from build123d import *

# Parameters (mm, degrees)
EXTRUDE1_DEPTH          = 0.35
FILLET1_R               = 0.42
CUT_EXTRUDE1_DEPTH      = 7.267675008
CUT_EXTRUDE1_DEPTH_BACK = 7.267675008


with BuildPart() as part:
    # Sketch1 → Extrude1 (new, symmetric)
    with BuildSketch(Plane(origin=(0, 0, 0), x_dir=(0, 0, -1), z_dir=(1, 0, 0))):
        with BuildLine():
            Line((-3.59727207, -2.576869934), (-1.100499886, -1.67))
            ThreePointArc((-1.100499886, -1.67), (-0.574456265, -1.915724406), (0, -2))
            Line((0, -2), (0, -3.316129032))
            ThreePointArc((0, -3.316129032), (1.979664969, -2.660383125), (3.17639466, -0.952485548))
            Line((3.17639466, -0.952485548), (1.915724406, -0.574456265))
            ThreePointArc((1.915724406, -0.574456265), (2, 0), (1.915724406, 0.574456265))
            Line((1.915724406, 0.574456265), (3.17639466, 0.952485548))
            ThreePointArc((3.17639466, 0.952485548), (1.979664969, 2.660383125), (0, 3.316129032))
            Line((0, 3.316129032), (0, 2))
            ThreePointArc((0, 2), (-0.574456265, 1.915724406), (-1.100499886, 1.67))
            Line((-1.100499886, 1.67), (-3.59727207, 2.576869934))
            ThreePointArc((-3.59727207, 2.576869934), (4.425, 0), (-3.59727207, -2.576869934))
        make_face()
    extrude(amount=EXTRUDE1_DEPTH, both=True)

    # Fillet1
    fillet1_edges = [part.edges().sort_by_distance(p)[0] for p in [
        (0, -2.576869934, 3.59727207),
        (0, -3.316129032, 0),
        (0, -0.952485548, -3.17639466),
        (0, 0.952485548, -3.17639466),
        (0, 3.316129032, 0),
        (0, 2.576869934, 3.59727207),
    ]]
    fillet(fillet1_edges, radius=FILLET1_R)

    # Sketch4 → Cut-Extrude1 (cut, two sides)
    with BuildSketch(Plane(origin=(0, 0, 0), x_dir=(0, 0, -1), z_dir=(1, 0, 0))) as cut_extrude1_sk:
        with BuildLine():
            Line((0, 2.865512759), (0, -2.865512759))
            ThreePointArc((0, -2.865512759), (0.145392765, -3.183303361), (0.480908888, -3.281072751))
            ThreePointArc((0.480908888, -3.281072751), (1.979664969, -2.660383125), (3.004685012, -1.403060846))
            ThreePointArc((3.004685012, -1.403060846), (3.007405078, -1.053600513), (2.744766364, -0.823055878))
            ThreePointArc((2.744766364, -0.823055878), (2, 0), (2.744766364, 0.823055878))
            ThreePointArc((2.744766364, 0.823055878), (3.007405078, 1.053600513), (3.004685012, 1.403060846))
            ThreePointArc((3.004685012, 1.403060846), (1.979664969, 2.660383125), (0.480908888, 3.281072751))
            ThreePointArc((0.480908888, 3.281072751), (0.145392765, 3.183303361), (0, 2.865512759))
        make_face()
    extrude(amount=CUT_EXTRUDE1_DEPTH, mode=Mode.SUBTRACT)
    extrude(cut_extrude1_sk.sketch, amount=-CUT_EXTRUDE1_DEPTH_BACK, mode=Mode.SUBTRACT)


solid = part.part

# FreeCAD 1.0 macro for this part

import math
import FreeCAD as App
import Part
import Sketcher
Q = App.Units.Quantity


def edges_at(feature, points):
    """Names of the edges that pass closest to the given points."""
    edges = feature.Shape.Edges
    near = lambda p: min(range(len(edges)), key=lambda i: edges[i].distToShape(Part.Vertex(*p))[0])
    return sorted({f"Edge{near(p) + 1}" for p in points})

doc = App.newDocument("Part")
body = doc.addObject("PartDesign::Body", "Body")

# Sketch on YZ plane
sketch1 = body.newObject("Sketcher::SketchObject", "Sketch")
sketch1.AttachmentSupport = (doc.getObject("YZ_Plane"), [""])
sketch1.MapMode = "FlatFace"
sketch1.addGeometry(Part.LineSegment(App.Vector(-1.67, 1.1005, 0), App.Vector(-2.57687, 3.597272, 0)), False)
sketch1.addGeometry(Part.ArcOfCircle(Part.Circle(App.Vector(0, 0, 0), App.Vector(0, 0, 1), 4.425), math.radians(125.61554), math.radians(414.38446)), False)
sketch1.addGeometry(Part.LineSegment(App.Vector(2.57687, 3.597272, 0), App.Vector(1.67, 1.1005, 0)), False)
sketch1.addGeometry(Part.ArcOfCircle(Part.Circle(App.Vector(0, 0, 0), App.Vector(0, 0, 1), 2), math.radians(0), math.radians(33.384162)), False)
sketch1.addGeometry(Part.LineSegment(App.Vector(2, 0, 0), App.Vector(3.316129, 0, 0)), False)
sketch1.addGeometry(Part.ArcOfCircle(Part.Circle(App.Vector(0, 0, 0), App.Vector(0, 0, 1), 3.316129), math.radians(-73.307919), math.radians(0)), False)
sketch1.addGeometry(Part.LineSegment(App.Vector(0.952486, -3.176395, 0), App.Vector(0.574456, -1.915724, 0)), False)
sketch1.addGeometry(Part.ArcOfCircle(Part.Circle(App.Vector(0, 0, 0), App.Vector(0, 0, 1), 2), math.radians(-106.692081), math.radians(-73.307919)), False)
sketch1.addGeometry(Part.LineSegment(App.Vector(-0.574456, -1.915724, 0), App.Vector(-0.952486, -3.176395, 0)), False)
sketch1.addGeometry(Part.ArcOfCircle(Part.Circle(App.Vector(0, 0, 0), App.Vector(0, 0, 1), 3.316129), math.radians(180), math.radians(253.307919)), False)
sketch1.addGeometry(Part.LineSegment(App.Vector(-3.316129, 0, 0), App.Vector(-2, 0, 0)), False)
sketch1.addGeometry(Part.ArcOfCircle(Part.Circle(App.Vector(0, 0, 0), App.Vector(0, 0, 1), 2), math.radians(146.615838), math.radians(180)), False)
sketch1.addConstraint(Sketcher.Constraint("Coincident", 0, 2, 1, 1))
sketch1.addConstraint(Sketcher.Constraint("Coincident", 1, 2, 2, 1))
sketch1.addConstraint(Sketcher.Constraint("Coincident", 2, 2, 3, 2))
sketch1.addConstraint(Sketcher.Constraint("Coincident", 3, 1, 4, 1))
sketch1.addConstraint(Sketcher.Constraint("Coincident", 4, 2, 5, 2))
sketch1.addConstraint(Sketcher.Constraint("Coincident", 5, 1, 6, 1))
sketch1.addConstraint(Sketcher.Constraint("Coincident", 6, 2, 7, 2))
sketch1.addConstraint(Sketcher.Constraint("Coincident", 7, 1, 8, 1))
sketch1.addConstraint(Sketcher.Constraint("Coincident", 8, 2, 9, 2))
sketch1.addConstraint(Sketcher.Constraint("Coincident", 9, 1, 10, 1))
sketch1.addConstraint(Sketcher.Constraint("Coincident", 10, 2, 11, 2))
sketch1.addConstraint(Sketcher.Constraint("Coincident", 11, 1, 0, 1))
sketch1.addConstraint(Sketcher.Constraint("Horizontal", 4))
sketch1.addConstraint(Sketcher.Constraint("Horizontal", 10))
sketch1.addConstraint(Sketcher.Constraint("Coincident", 1, 3, -1, 1))
sketch1.addConstraint(Sketcher.Constraint("Coincident", 3, 3, -1, 1))
sketch1.addConstraint(Sketcher.Constraint("Coincident", 5, 3, -1, 1))
sketch1.addConstraint(Sketcher.Constraint("Coincident", 7, 3, -1, 1))
sketch1.addConstraint(Sketcher.Constraint("Coincident", 9, 3, -1, 1))
sketch1.addConstraint(Sketcher.Constraint("Coincident", 11, 3, -1, 1))
sketch1.addConstraint(Sketcher.Constraint("Equal", 3, 7))
sketch1.addConstraint(Sketcher.Constraint("Equal", 5, 9))
sketch1.addConstraint(Sketcher.Constraint("Equal", 7, 11))
sketch1.addConstraint(Sketcher.Constraint("PointOnObject", 3, 1, -1))
sketch1.addConstraint(Sketcher.Constraint("PointOnObject", 9, 1, -1))
sketch1.addConstraint(Sketcher.Constraint("Horizontal", 0, 2, 1, 2))
sketch1.addConstraint(Sketcher.Constraint("Horizontal", 6, 2, 7, 1))
sketch1.addConstraint(Sketcher.Constraint("Horizontal", 5, 1, 8, 2))
sketch1.addConstraint(Sketcher.Constraint("Horizontal", 2, 2, 11, 1))
sketch1.addConstraint(Sketcher.Constraint("Radius", 3, Q("2 mm")))
sketch1.addConstraint(Sketcher.Constraint("Radius", 1, Q("4.425 mm")))
sketch1.addConstraint(Sketcher.Constraint("DistanceX", -1, 1, 2, 2, Q("1.67 mm")))
sketch1.addConstraint(Sketcher.Constraint("Radius", 5, Q("3.316129 mm")))
sketch1.addConstraint(Sketcher.Constraint("DistanceX", 0, 2, -1, 1, Q("2.57687 mm")))
sketch1.addConstraint(Sketcher.Constraint("DistanceX", 6, 2, 5, 1, Q("0.378029 mm")))
sketch1.addConstraint(Sketcher.Constraint("DistanceX", 7, 1, 5, 1, Q("1.526942 mm")))
pad1 = body.newObject("PartDesign::Pad", "Pad")
pad1.Profile = sketch1
pad1.Length = 0.7
pad1.Midplane = True
doc.recompute()

fillet = body.newObject("PartDesign::Fillet", "Fillet")
fillet.Base = (pad1, edges_at(pad1, [
    (0, -2.577, 3.597),
    (0, -3.316, 0),
    (0, -0.952, -3.176),
    (0, 0.952, -3.176),
    (0, 3.316, 0),
    (0, 2.577, 3.597),
]))
fillet.Radius = 0.42

# Sketch on YZ plane
sketch2 = body.newObject("Sketcher::SketchObject", "Sketch001")
sketch2.AttachmentSupport = (doc.getObject("YZ_Plane"), [""])
sketch2.MapMode = "FlatFace"
sketch2.addGeometry(Part.LineSegment(App.Vector(2.865513, 0, 0), App.Vector(-2.865513, 0, 0)), False)
sketch2.addGeometry(Part.ArcOfCircle(Part.Circle(App.Vector(-2.865513, -0.42, 0), App.Vector(0, 0, 1), 0.42), math.radians(90), math.radians(188.338505)), False)
sketch2.addGeometry(Part.ArcOfCircle(Part.Circle(App.Vector(0, 0, 0), App.Vector(0, 0, 1), 3.316129), math.radians(-171.661495), math.radians(-115.030586)), False)
sketch2.addGeometry(Part.ArcOfCircle(Part.Circle(App.Vector(-1.225358, -2.624131, 0), App.Vector(0, 0, 1), 0.42), math.radians(-115.030586), math.radians(-16.692081)), False)
sketch2.addGeometry(Part.ArcOfCircle(Part.Circle(App.Vector(0, -2.827171, 0), App.Vector(0, 0, 1), 0.827171), math.radians(5.717403), math.radians(174.282597)), False)
sketch2.addGeometry(Part.ArcOfCircle(Part.Circle(App.Vector(1.225358, -2.624131, 0), App.Vector(0, 0, 1), 0.42), math.radians(-163.307919), math.radians(-64.969414)), False)
sketch2.addGeometry(Part.ArcOfCircle(Part.Circle(App.Vector(0, 0, 0), App.Vector(0, 0, 1), 3.316129), math.radians(-64.969414), math.radians(-8.338505)), False)
sketch2.addGeometry(Part.ArcOfCircle(Part.Circle(App.Vector(2.865513, -0.42, 0), App.Vector(0, 0, 1), 0.42), math.radians(-8.338505), math.radians(90)), False)
sketch2.addConstraint(Sketcher.Constraint("Tangent", 0, 2, 1, 1))
sketch2.addConstraint(Sketcher.Constraint("Tangent", 1, 2, 2, 1))
sketch2.addConstraint(Sketcher.Constraint("Tangent", 2, 2, 3, 1))
sketch2.addConstraint(Sketcher.Constraint("Coincident", 3, 2, 4, 2))
sketch2.addConstraint(Sketcher.Constraint("Coincident", 4, 1, 5, 1))
sketch2.addConstraint(Sketcher.Constraint("Tangent", 5, 2, 6, 1))
sketch2.addConstraint(Sketcher.Constraint("Tangent", 6, 2, 7, 1))
sketch2.addConstraint(Sketcher.Constraint("Tangent", 7, 2, 0, 1))
sketch2.addConstraint(Sketcher.Constraint("Horizontal", 0))
sketch2.addConstraint(Sketcher.Constraint("Coincident", 2, 3, -1, 1))
sketch2.addConstraint(Sketcher.Constraint("Coincident", 6, 3, -1, 1))
sketch2.addConstraint(Sketcher.Constraint("Equal", 1, 3))
sketch2.addConstraint(Sketcher.Constraint("Equal", 3, 5))
sketch2.addConstraint(Sketcher.Constraint("Equal", 2, 6))
sketch2.addConstraint(Sketcher.Constraint("Equal", 5, 7))
sketch2.addConstraint(Sketcher.Constraint("Symmetric", 3, 2, 4, 1, -2))
sketch2.addConstraint(Sketcher.Constraint("PointOnObject", 0, 2, -1))
sketch2.addConstraint(Sketcher.Constraint("Radius", 1, Q("0.42 mm")))
sketch2.addConstraint(Sketcher.Constraint("Radius", 2, Q("3.316129 mm")))
sketch2.addConstraint(Sketcher.Constraint("Radius", 4, Q("0.827171 mm")))
sketch2.addConstraint(Sketcher.Constraint("DistanceX", 3, 3, -1, 1, Q("1.225358 mm")))
sketch2.addConstraint(Sketcher.Constraint("DistanceY", 4, 3, -1, 1, Q("2.827171 mm")))
pocket1 = body.newObject("PartDesign::Pocket", "Pocket")
pocket1.Profile = sketch2
pocket1.Type = "ThroughAll"
pocket1.Midplane = True

doc.recompute()
